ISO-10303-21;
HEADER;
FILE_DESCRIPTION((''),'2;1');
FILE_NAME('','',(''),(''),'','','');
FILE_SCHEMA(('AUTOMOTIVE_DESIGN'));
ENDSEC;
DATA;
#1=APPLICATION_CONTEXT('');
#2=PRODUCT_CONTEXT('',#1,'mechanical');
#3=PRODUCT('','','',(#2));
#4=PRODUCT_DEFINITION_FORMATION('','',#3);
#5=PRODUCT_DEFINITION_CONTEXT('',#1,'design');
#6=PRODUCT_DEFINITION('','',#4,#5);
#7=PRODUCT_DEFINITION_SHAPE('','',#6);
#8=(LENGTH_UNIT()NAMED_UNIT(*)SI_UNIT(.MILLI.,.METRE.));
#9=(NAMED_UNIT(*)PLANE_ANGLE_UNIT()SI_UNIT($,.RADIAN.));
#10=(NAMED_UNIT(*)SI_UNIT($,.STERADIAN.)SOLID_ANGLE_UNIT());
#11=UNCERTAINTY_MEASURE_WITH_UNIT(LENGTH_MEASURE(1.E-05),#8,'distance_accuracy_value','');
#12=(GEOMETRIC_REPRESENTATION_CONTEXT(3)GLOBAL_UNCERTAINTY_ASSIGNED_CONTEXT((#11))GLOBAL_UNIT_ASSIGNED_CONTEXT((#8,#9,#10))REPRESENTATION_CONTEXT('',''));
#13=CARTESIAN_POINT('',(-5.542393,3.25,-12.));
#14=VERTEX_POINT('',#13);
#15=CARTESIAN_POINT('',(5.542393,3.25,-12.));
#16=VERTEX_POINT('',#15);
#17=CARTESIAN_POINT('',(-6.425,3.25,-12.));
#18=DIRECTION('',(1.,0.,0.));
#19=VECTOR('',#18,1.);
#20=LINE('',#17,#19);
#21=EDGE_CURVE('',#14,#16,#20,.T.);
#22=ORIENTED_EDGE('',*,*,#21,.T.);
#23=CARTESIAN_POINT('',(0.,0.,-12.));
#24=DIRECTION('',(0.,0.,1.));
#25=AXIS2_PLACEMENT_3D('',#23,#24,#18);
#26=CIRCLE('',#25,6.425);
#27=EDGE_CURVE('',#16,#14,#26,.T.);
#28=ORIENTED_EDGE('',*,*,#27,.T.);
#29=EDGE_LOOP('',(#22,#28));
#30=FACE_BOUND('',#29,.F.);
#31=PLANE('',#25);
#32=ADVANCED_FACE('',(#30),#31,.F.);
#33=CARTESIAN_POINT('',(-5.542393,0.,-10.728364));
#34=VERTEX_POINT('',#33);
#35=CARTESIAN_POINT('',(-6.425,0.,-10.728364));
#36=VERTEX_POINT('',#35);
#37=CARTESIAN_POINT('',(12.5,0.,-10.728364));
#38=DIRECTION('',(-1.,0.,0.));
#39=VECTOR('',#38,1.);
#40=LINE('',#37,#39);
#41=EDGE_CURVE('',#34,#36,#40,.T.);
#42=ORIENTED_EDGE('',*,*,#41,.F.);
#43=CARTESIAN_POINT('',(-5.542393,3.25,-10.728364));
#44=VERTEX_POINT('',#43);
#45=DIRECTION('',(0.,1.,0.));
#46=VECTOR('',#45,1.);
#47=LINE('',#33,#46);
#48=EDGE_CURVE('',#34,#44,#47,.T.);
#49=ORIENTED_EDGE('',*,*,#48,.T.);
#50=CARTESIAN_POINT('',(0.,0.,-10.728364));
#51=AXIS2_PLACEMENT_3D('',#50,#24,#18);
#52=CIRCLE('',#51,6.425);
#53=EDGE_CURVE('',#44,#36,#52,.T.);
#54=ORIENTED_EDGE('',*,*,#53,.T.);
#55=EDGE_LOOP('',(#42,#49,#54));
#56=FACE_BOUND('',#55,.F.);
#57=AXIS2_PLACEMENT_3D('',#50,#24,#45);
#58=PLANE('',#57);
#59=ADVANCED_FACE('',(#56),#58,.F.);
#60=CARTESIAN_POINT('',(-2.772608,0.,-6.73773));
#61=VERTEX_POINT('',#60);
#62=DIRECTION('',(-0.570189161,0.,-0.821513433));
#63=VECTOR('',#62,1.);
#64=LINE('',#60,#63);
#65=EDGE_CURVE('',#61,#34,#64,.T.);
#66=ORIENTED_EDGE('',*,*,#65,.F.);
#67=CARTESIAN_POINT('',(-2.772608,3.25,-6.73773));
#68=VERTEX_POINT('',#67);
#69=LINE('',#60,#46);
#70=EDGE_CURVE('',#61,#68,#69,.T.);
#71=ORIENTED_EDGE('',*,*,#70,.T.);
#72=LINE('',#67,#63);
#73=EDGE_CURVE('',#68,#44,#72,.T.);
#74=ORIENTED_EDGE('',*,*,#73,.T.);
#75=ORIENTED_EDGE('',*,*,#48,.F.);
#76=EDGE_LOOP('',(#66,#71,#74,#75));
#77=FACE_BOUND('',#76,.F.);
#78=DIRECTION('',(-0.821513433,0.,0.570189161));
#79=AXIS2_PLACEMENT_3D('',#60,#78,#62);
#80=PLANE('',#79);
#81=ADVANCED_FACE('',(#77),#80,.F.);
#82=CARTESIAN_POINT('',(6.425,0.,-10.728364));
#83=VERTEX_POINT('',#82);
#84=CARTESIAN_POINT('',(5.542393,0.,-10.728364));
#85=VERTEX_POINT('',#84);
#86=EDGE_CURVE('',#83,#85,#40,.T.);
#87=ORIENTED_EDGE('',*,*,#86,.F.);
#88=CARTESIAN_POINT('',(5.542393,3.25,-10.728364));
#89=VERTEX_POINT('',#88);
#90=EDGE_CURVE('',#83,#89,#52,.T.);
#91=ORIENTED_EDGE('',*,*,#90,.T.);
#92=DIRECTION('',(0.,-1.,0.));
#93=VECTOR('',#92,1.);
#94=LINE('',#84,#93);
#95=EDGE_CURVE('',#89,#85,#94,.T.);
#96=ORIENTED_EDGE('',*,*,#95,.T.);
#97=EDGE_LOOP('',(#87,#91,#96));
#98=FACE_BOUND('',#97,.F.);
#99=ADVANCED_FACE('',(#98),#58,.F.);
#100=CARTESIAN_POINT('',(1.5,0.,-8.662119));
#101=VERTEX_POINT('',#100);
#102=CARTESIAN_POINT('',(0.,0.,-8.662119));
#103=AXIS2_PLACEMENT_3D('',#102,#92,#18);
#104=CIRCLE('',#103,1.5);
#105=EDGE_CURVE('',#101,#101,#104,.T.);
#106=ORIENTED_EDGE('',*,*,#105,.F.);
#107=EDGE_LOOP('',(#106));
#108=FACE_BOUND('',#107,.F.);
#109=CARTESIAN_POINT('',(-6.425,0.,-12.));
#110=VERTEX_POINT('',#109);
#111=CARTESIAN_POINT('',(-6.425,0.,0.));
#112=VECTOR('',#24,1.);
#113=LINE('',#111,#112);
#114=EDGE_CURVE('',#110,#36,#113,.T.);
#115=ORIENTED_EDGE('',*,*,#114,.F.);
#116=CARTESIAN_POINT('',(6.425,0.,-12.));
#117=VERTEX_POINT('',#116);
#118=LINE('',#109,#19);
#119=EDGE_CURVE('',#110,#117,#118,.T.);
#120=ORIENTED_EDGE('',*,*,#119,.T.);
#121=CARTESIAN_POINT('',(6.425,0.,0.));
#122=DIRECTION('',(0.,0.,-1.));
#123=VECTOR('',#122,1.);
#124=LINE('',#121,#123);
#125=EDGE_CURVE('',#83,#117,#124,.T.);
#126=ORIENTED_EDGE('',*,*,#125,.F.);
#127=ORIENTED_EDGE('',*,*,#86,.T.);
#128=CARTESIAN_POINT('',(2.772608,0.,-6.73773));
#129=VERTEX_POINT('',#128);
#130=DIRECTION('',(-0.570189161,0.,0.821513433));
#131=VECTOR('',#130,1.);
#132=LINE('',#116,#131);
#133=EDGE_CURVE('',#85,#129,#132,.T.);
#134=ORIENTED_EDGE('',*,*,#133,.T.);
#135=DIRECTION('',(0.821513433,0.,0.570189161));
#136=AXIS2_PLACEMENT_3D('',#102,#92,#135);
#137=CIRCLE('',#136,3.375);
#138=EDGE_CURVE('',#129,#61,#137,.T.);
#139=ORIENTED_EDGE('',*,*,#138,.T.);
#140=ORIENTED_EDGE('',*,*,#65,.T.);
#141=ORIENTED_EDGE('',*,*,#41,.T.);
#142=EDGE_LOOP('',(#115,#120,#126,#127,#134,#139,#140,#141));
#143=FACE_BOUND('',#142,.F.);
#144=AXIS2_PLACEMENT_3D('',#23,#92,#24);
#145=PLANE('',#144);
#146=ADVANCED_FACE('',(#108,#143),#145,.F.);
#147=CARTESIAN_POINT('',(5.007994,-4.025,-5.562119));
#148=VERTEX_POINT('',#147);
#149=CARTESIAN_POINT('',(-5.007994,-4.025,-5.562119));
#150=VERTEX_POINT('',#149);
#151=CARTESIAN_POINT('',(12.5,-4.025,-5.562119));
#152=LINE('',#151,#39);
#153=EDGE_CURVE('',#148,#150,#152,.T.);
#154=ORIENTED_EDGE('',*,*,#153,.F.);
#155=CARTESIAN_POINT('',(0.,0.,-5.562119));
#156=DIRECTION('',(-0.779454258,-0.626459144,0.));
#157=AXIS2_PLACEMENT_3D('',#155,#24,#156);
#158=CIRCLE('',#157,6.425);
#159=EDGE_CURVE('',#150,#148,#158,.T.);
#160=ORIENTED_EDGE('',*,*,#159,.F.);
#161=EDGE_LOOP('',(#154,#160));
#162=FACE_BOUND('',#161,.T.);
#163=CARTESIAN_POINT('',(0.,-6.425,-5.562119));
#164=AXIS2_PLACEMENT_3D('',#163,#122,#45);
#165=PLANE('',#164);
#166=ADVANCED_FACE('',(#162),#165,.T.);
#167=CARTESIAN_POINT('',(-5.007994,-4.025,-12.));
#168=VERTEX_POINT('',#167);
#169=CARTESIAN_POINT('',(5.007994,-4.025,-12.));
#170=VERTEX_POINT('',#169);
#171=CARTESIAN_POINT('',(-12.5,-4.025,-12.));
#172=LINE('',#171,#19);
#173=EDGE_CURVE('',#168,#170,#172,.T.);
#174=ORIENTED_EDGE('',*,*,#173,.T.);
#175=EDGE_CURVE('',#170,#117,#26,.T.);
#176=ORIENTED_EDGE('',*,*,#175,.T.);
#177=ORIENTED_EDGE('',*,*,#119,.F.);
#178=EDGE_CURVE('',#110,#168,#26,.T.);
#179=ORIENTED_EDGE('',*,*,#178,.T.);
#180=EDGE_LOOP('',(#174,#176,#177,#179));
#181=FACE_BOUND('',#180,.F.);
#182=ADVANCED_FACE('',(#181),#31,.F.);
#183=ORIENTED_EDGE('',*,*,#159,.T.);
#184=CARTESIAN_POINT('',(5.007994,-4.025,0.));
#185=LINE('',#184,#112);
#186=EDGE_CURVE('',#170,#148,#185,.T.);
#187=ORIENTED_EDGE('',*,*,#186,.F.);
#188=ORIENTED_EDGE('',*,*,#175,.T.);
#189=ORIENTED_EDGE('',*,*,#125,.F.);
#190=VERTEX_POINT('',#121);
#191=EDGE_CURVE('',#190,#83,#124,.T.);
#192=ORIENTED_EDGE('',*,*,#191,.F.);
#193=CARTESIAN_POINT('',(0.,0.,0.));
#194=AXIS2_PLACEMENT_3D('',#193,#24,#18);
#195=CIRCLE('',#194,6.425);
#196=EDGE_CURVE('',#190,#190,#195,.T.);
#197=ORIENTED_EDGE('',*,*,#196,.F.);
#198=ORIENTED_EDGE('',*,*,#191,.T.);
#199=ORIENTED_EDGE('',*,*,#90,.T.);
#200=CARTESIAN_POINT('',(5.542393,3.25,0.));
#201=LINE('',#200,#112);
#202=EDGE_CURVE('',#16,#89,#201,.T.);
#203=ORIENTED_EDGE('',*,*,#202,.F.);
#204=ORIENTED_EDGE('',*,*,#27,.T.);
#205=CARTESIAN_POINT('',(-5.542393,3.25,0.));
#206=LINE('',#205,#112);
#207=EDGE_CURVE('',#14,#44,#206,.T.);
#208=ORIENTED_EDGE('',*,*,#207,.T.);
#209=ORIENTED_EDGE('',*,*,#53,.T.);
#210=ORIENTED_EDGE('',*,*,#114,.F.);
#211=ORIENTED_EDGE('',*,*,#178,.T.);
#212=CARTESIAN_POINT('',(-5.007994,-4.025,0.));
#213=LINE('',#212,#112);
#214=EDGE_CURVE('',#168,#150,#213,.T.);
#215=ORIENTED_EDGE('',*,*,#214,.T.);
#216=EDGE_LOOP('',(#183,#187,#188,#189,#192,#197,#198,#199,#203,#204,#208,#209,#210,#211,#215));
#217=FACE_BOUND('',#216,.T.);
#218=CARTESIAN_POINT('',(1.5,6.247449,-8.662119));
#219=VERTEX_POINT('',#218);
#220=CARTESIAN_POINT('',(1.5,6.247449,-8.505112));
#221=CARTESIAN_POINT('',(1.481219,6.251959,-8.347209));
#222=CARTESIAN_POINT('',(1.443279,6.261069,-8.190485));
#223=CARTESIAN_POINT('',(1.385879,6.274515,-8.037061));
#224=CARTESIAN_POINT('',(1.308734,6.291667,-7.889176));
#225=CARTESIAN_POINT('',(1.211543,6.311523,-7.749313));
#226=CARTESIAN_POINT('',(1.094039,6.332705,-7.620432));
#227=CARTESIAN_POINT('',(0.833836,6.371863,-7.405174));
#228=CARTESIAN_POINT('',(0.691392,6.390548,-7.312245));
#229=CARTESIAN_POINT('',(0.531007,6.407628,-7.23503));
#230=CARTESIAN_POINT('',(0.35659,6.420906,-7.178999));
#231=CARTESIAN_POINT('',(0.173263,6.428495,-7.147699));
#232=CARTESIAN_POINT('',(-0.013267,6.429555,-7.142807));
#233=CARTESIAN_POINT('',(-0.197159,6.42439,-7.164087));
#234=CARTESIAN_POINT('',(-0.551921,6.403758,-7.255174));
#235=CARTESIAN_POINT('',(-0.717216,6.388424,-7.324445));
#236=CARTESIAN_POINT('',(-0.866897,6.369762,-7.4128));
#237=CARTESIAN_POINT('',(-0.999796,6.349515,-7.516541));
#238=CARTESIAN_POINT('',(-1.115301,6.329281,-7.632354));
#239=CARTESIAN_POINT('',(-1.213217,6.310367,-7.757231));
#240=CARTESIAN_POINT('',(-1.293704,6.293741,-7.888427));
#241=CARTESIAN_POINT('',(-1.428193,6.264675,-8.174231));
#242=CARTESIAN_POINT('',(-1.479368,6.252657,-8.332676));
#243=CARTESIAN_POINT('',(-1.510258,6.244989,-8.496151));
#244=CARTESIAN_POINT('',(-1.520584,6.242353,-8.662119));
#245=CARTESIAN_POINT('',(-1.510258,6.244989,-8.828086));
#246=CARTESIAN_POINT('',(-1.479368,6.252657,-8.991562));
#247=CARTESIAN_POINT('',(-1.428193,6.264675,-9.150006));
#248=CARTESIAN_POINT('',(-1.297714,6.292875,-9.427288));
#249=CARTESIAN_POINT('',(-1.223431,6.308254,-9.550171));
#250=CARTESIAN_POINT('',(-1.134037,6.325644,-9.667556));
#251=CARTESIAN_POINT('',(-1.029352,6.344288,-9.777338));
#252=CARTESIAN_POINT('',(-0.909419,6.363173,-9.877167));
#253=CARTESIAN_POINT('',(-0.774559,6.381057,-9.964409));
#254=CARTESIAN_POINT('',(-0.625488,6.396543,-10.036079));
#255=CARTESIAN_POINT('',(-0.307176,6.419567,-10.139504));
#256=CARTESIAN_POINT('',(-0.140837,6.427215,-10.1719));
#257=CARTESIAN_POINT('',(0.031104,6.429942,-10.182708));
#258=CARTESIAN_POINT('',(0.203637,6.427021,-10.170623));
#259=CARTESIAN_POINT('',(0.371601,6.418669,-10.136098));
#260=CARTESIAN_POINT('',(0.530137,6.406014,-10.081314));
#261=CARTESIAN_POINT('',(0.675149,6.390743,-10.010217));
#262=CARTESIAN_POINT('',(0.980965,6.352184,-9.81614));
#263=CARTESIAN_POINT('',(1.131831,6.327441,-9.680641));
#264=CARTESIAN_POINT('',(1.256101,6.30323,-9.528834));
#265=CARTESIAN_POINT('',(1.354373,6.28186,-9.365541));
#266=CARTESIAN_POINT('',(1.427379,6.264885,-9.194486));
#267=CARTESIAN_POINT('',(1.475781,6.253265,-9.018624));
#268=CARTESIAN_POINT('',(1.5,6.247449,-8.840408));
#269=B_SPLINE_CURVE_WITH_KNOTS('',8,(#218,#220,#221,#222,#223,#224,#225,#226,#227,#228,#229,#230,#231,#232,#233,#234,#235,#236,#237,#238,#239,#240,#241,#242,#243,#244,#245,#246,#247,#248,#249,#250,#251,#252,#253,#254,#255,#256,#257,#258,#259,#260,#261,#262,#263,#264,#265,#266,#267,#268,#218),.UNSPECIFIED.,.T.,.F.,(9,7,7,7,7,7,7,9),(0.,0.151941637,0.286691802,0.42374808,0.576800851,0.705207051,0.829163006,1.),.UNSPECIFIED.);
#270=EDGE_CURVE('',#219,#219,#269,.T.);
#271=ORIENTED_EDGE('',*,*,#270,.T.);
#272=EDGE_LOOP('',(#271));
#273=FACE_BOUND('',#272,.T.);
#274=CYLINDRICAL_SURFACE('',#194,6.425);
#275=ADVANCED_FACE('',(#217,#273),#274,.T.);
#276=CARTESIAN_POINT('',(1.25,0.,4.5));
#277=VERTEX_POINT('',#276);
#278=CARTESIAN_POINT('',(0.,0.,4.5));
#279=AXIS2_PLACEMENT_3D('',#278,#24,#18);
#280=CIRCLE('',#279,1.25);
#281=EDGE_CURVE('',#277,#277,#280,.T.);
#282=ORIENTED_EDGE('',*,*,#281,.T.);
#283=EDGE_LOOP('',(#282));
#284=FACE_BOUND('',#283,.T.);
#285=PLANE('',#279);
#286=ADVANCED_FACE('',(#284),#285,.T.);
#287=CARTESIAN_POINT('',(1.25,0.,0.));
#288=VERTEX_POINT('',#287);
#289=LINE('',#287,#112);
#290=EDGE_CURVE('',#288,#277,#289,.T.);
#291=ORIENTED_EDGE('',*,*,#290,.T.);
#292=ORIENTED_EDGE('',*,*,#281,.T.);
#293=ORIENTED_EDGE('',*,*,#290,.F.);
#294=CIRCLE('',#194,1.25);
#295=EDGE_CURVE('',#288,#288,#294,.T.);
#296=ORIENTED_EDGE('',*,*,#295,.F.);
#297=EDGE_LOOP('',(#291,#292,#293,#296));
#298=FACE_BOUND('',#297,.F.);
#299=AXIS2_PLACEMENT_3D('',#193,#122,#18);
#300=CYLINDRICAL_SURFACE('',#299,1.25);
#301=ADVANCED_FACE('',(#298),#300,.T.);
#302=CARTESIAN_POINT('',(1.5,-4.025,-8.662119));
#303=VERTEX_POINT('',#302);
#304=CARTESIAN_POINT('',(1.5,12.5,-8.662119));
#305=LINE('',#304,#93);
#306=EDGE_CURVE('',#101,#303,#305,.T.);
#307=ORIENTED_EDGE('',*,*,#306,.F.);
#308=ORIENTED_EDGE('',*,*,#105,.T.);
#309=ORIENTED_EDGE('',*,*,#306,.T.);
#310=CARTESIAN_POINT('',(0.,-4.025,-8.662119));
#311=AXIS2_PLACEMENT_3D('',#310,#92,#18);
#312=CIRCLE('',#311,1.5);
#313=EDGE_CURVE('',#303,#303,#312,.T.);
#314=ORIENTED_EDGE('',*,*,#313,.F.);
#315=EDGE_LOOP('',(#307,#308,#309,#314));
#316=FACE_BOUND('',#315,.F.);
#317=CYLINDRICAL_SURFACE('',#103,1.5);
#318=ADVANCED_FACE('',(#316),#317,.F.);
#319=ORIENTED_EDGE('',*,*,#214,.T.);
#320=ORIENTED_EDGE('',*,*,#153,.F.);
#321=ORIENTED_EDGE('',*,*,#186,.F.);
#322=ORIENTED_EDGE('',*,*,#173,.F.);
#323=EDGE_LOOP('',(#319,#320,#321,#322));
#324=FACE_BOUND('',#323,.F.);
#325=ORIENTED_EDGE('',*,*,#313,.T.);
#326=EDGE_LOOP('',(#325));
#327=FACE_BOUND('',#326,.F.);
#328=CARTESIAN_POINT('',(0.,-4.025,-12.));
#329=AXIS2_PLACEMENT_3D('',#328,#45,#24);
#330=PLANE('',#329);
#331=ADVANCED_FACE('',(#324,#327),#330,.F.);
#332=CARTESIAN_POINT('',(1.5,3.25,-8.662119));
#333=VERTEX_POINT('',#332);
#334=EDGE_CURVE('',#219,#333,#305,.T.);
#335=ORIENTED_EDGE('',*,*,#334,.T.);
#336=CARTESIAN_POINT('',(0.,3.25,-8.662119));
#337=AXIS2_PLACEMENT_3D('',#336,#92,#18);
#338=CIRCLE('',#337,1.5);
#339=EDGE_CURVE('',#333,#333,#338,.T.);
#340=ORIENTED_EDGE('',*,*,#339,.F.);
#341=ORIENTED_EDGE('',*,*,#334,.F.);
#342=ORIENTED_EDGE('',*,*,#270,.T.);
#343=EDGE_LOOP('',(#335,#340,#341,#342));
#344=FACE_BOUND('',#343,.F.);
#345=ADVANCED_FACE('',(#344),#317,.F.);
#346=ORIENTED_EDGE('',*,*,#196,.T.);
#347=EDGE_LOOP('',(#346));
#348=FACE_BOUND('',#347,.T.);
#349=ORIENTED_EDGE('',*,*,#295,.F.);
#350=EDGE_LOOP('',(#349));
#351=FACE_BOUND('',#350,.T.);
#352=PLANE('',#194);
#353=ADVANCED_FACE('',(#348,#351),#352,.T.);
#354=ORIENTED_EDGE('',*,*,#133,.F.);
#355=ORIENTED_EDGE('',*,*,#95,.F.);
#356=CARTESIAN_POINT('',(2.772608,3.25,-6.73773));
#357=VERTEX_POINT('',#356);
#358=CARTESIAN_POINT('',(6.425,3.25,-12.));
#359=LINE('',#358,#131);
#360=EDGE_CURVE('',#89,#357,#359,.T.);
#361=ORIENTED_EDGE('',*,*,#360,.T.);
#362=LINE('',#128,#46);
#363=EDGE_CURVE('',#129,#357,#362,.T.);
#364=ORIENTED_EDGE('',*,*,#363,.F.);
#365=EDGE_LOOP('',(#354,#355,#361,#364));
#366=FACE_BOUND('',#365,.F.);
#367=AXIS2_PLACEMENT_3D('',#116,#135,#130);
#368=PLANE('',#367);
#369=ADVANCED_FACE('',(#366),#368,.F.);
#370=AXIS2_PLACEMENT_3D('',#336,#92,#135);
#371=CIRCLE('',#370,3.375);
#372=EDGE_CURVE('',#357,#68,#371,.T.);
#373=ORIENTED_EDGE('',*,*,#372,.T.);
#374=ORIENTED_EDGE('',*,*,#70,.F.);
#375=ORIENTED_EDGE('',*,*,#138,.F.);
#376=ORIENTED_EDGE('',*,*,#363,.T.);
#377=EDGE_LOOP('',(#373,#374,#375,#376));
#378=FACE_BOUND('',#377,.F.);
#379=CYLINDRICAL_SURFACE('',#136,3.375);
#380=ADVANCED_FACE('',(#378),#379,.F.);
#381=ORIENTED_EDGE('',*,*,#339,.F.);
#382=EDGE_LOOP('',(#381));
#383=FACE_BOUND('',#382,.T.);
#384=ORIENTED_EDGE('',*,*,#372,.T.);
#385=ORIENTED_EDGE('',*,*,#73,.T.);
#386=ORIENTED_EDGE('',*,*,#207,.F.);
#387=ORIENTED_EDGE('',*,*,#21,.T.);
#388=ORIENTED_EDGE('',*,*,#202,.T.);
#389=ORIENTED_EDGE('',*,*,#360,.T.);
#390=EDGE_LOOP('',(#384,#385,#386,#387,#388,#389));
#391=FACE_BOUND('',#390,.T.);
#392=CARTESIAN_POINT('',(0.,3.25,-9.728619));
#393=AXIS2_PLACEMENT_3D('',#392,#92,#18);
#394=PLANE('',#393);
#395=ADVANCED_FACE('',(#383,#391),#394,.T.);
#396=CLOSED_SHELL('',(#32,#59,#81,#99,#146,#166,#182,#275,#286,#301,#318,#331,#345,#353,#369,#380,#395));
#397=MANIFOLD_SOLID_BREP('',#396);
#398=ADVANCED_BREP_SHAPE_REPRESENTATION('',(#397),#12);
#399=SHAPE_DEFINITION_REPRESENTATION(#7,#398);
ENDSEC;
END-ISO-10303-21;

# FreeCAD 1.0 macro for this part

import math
import FreeCAD as App
import Part
import Sketcher

V = App.Vector


def add_polygon(sketch, points):
    """Adds a closed chain of lines whose ends are joined by coincident constraints."""
    first, n = sketch.GeometryCount, len(points)
    for a, b in zip(points, points[1:] + points[:1]):
        sketch.addGeometry(Part.LineSegment(App.Vector(*a, 0), App.Vector(*b, 0)), False)
    for i in range(n):
        sketch.addConstraint(Sketcher.Constraint("Coincident", first + i, 2, first + (i + 1) % n, 1))

doc = App.newDocument("Part")
body = doc.addObject("PartDesign::Body", "Body")

# Sketch on XY plane
sketch1 = body.newObject("Sketcher::SketchObject", "Sketch")
sketch1.AttachmentSupport = (doc.getObject("XY_Plane"), [""])
sketch1.MapMode = "FlatFace"
sketch1.addGeometry(Part.Circle(V(0, 0, 0), V(0, 0, 1), 6), False)
sketch1.addConstraint(Sketcher.Constraint("Coincident", 0, 3, -1, 1))
sketch1.addConstraint(Sketcher.Constraint("Diameter", 0, 12.85))
pad1 = body.newObject("PartDesign::Pad", "Pad")
pad1.Profile = sketch1
pad1.Length = 12
pad1.Reversed = True

# Sketch on XZ plane
sketch2 = body.newObject("Sketcher::SketchObject", "Sketch001")
sketch2.AttachmentSupport = (doc.getObject("XZ_Plane"), [""])
sketch2.MapMode = "FlatFace"
sketch2.addGeometry(Part.Circle(V(0, -8.7, 0), V(0, 0, 1), 1.5), False)
sketch2.addConstraint(Sketcher.Constraint("PointOnObject", 0, 3, -2))
sketch2.addConstraint(Sketcher.Constraint("Diameter", 0, 3.0))
sketch2.addConstraint(Sketcher.Constraint("DistanceY", 0, 3, -1, 1, 8.662119))
pocket1 = body.newObject("PartDesign::Pocket", "Pocket")
pocket1.Profile = sketch2
pocket1.Length = 25
pocket1.Midplane = True

# Sketch on XZ plane
sketch3 = body.newObject("Sketcher::SketchObject", "Sketch002")
sketch3.AttachmentSupport = (doc.getObject("XZ_Plane"), [""])
sketch3.MapMode = "FlatFace"
sketch3.addGeometry(Part.LineSegment(V(6.4, -12, 0), V(2.8, -6.7, 0)), False)
sketch3.addGeometry(Part.ArcOfCircle(Part.Circle(V(0, -8.7, 0), V(0, 0, 1), 3.4), math.radians(35), math.radians(145)), False)
sketch3.addGeometry(Part.LineSegment(V(-2.8, -6.7, 0), V(-6.4, -12, 0)), False)
sketch3.addGeometry(Part.LineSegment(V(-6.4, -12, 0), V(6.4, -12, 0)), False)
sketch3.addConstraint(Sketcher.Constraint("Tangent", 0, 2, 1, 1))
sketch3.addConstraint(Sketcher.Constraint("Tangent", 1, 2, 2, 1))
sketch3.addConstraint(Sketcher.Constraint("Coincident", 2, 2, 3, 1))
sketch3.addConstraint(Sketcher.Constraint("Coincident", 3, 2, 0, 1))
sketch3.addConstraint(Sketcher.Constraint("Horizontal", 3))
sketch3.addConstraint(Sketcher.Constraint("Symmetric", 0, 2, 1, 2, -2))
sketch3.addConstraint(Sketcher.Constraint("DistanceY", 2, 2, -1, 1, 12.0))
sketch3.addConstraint(Sketcher.Constraint("Radius", 1, 3.375))
sketch3.addConstraint(Sketcher.Constraint("DistanceX", 3, 1, 3, 2, 12.85))
sketch3.addConstraint(Sketcher.Constraint("Distance", 0, 6.40558))
pocket2 = body.newObject("PartDesign::Pocket", "Pocket001")
pocket2.Profile = sketch3
pocket2.Length = 3.25

# Sketch on YZ plane
sketch4 = body.newObject("Sketcher::SketchObject", "Sketch003")
sketch4.AttachmentSupport = (doc.getObject("YZ_Plane"), [""])
sketch4.MapMode = "FlatFace"
add_polygon(sketch4, [(0, -10.7), (0, -12), (3.2, -12), (3.2, -10.7)])  # lines 0-3
add_polygon(sketch4, [(-6.4, -5.6), (-6.4, -12), (-4, -12), (-4, -5.6)])  # lines 4-7
sketch4.addConstraint(Sketcher.Constraint("Vertical", 0))
sketch4.addConstraint(Sketcher.Constraint("Horizontal", 1))
sketch4.addConstraint(Sketcher.Constraint("Vertical", 2))
sketch4.addConstraint(Sketcher.Constraint("Horizontal", 3))
sketch4.addConstraint(Sketcher.Constraint("Vertical", 4))
sketch4.addConstraint(Sketcher.Constraint("Horizontal", 5))
sketch4.addConstraint(Sketcher.Constraint("Vertical", 6))
sketch4.addConstraint(Sketcher.Constraint("Horizontal", 7))
sketch4.addConstraint(Sketcher.Constraint("PointOnObject", 0, 2, -2))
sketch4.addConstraint(Sketcher.Constraint("Horizontal", 1, 2, 4, 2))
sketch4.addConstraint(Sketcher.Constraint("DistanceX", 5, 1, 5, 2, 2.4))
sketch4.addConstraint(Sketcher.Constraint("DistanceY", 0, 2, -1, 1, 12.0))
sketch4.addConstraint(Sketcher.Constraint("DistanceX", 1, 1, 1, 2, 3.25))
sketch4.addConstraint(Sketcher.Constraint("DistanceX", 4, 2, -1, 1, 6.425))
sketch4.addConstraint(Sketcher.Constraint("DistanceY", 4, 2, 4, 1, 6.437881))
sketch4.addConstraint(Sketcher.Constraint("DistanceY", 0, 2, 0, 1, 1.271636))
pocket3 = body.newObject("PartDesign::Pocket", "Pocket002")
pocket3.Profile = sketch4
pocket3.Length = 25
pocket3.Midplane = True

# Sketch on XY plane
sketch5 = body.newObject("Sketcher::SketchObject", "Sketch004")
sketch5.AttachmentSupport = (doc.getObject("XY_Plane"), [""])
sketch5.MapMode = "FlatFace"
sketch5.addGeometry(Part.Circle(V(0, 0, 0), V(0, 0, 1), 1.2), False)
sketch5.addConstraint(Sketcher.Constraint("Coincident", 0, 3, -1, 1))
sketch5.addConstraint(Sketcher.Constraint("Diameter", 0, 2.5))
pad2 = body.newObject("PartDesign::Pad", "Pad001")
pad2.Profile = sketch5
pad2.Length = 4.5

doc.recompute()
